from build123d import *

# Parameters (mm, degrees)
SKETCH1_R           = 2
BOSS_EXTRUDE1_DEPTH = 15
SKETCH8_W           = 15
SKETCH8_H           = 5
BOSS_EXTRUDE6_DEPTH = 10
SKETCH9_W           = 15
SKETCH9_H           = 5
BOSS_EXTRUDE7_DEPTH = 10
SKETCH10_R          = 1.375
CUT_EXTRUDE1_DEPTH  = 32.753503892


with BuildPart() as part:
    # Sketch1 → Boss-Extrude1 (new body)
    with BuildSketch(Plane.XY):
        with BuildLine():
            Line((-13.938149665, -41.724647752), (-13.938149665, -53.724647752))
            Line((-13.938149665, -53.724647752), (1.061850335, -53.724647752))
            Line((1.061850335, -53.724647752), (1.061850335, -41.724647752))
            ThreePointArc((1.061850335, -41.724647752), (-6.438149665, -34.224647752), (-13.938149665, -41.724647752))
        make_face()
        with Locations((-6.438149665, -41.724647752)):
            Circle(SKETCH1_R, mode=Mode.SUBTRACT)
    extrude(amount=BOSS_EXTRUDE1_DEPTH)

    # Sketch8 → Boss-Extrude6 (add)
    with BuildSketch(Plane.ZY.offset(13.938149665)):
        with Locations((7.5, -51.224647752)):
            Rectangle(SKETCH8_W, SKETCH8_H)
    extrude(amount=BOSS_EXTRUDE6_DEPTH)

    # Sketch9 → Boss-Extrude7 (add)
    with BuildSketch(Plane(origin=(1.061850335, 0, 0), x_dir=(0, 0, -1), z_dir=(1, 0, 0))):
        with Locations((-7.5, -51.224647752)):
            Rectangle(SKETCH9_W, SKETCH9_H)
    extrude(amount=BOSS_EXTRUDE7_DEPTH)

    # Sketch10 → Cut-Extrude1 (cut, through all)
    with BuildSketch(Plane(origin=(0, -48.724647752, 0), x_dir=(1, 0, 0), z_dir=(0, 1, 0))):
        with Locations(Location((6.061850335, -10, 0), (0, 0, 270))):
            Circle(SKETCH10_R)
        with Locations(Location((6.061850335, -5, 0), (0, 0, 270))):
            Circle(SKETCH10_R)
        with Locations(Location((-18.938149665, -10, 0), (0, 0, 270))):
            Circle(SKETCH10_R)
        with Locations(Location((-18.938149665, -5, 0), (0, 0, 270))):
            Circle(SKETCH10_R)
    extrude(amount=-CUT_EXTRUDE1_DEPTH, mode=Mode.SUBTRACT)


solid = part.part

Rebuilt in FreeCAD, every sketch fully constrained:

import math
import FreeCAD as App
import Part
import Sketcher

V = App.Vector
Q = App.Units.Quantity

doc = App.newDocument("Part")
params = doc.addObject("Spreadsheet::Sheet", "Params")
for row, (alias, value) in enumerate([
    ("sketch1_diameter", "4 mm"),
    ("sketch1_radius", "7.5 mm"),
    ("sketch1_height", "12 mm"),
    ("pad1_length", "15 mm"),
    ("sketch2_width", "5 mm"),
    ("sketch2_height", "15 mm"),
    ("pad2_length", "10 mm"),
    ("sketch3_width", "5 mm"),
    ("sketch3_height", "15 mm"),
    ("pad3_length", "10 mm"),
    ("sketch4_diameter", "2.75 mm"),
], start=1):
    params.set(f"A{row}", alias)
    params.set(f"B{row}", "=" + value)
    params.setAlias(f"B{row}", alias)

body = doc.addObject("PartDesign::Body", "Body")

sketch1 = body.newObject("Sketcher::SketchObject", "Sketch")
sketch1.AttachmentSupport = (doc.getObject("XY_Plane"), [""])
sketch1.MapMode = "FlatFace"
sketch1.addGeometry([
    Part.LineSegment(V(-13.9, -41.7, 0), V(-13.9, -53.7, 0)),
    Part.LineSegment(V(-13.9, -53.7, 0), V(1.1, -53.7, 0)),
    Part.LineSegment(V(1.1, -53.7, 0), V(1.1, -41.7, 0)),
    Part.ArcOfCircle(Part.Circle(V(-6.4, -41.7, 0), V(0, 0, 1), 7.5), math.radians(0), math.radians(180)),
    Part.Circle(V(-6.4, -41.7, 0), V(0, 0, 1), 2),
], False)
sketch1.addConstraint([
    Sketcher.Constraint("Coincident", 0, 2, 1, 1),
    Sketcher.Constraint("Coincident", 1, 2, 2, 1),
    Sketcher.Constraint("Tangent", 2, 2, 3, 1),
    Sketcher.Constraint("Tangent", 3, 2, 0, 1),
    Sketcher.Constraint("Vertical", 0),
    Sketcher.Constraint("Horizontal", 1),
    Sketcher.Constraint("Vertical", 2),
    Sketcher.Constraint("Coincident", 4, 3, 3, 3),
    Sketcher.Constraint("Diameter", 4, Q("4 mm")),
    Sketcher.Constraint("Radius", 3, Q("7.5 mm")),
    Sketcher.Constraint("DistanceY", 0, 2, 0, 1, Q("12 mm")),
    Sketcher.Constraint("DistanceX", 3, 3, -1, 1, Q("6.43815 mm")),
    Sketcher.Constraint("DistanceY", 3, 3, -1, 1, Q("41.724648 mm")),
])
sketch1.setExpression("Constraints[8]", "Params.sketch1_diameter")
sketch1.setExpression("Constraints[9]", "Params.sketch1_radius")
sketch1.setExpression("Constraints[10]", "Params.sketch1_height")
pad1 = body.newObject("PartDesign::Pad", "Pad")
pad1.Profile = sketch1
pad1.setExpression("Length", "Params.pad1_length")

sketch2 = body.newObject("Sketcher::SketchObject", "Sketch001")
sketch2.AttachmentSupport = (doc.getObject("YZ_Plane"), [""])
sketch2.MapMode = "FlatFace"
sketch2.AttachmentOffset = App.Placement(V(0, 0, -13.93815), App.Rotation())
sketch2.addGeometry([
    Part.LineSegment(V(-49, 0, 0), V(-54, 0, 0)),
    Part.LineSegment(V(-54, 0, 0), V(-54, 15, 0)),
    Part.LineSegment(V(-54, 15, 0), V(-49, 15, 0)),
    Part.LineSegment(V(-49, 15, 0), V(-49, 0, 0)),
], False)
sketch2.addConstraint([
    Sketcher.Constraint("Coincident", 0, 2, 1, 1),
    Sketcher.Constraint("Coincident", 1, 2, 2, 1),
    Sketcher.Constraint("Coincident", 2, 2, 3, 1),
    Sketcher.Constraint("Coincident", 3, 2, 0, 1),
    Sketcher.Constraint("Horizontal", 0),
    Sketcher.Constraint("Vertical", 1),
    Sketcher.Constraint("Horizontal", 2),
    Sketcher.Constraint("Vertical", 3),
    Sketcher.Constraint("PointOnObject", 0, 2, -1),
    Sketcher.Constraint("DistanceX", 0, 2, 0, 1, Q("5 mm")),
    Sketcher.Constraint("DistanceY", 1, 1, 1, 2, Q("15 mm")),
    Sketcher.Constraint("DistanceX", 0, 2, -1, 1, Q("53.724648 mm")),
])
sketch2.setExpression("Constraints[9]", "Params.sketch2_width")
sketch2.setExpression("Constraints[10]", "Params.sketch2_height")
pad2 = body.newObject("PartDesign::Pad", "Pad001")
pad2.Profile = sketch2
pad2.setExpression("Length", "Params.pad2_length")
pad2.Reversed = True

sketch3 = body.newObject("Sketcher::SketchObject", "Sketch002")
sketch3.AttachmentSupport = (doc.getObject("YZ_Plane"), [""])
sketch3.MapMode = "FlatFace"
sketch3.AttachmentOffset = App.Placement(V(0, 0, 1.06185), App.Rotation())
sketch3.addGeometry([
    Part.LineSegment(V(-49, 15, 0), V(-54, 15, 0)),
    Part.LineSegment(V(-54, 15, 0), V(-54, 0, 0)),
    Part.LineSegment(V(-54, 0, 0), V(-49, 0, 0)),
    Part.LineSegment(V(-49, 0, 0), V(-49, 15, 0)),
], False)
sketch3.addConstraint([
    Sketcher.Constraint("Coincident", 0, 2, 1, 1),
    Sketcher.Constraint("Coincident", 1, 2, 2, 1),
    Sketcher.Constraint("Coincident", 2, 2, 3, 1),
    Sketcher.Constraint("Coincident", 3, 2, 0, 1),
    Sketcher.Constraint("Horizontal", 0),
    Sketcher.Constraint("Vertical", 1),
    Sketcher.Constraint("Horizontal", 2),
    Sketcher.Constraint("Vertical", 3),
    Sketcher.Constraint("PointOnObject", 1, 2, -1),
    Sketcher.Constraint("DistanceX", 0, 2, 0, 1, Q("5 mm")),
    Sketcher.Constraint("DistanceY", 1, 2, 1, 1, Q("15 mm")),
    Sketcher.Constraint("DistanceX", 0, 2, -1, 1, Q("53.724648 mm")),
])
sketch3.setExpression("Constraints[9]", "Params.sketch3_width")
sketch3.setExpression("Constraints[10]", "Params.sketch3_height")
pad3 = body.newObject("PartDesign::Pad", "Pad002")
pad3.Profile = sketch3
pad3.setExpression("Length", "Params.pad3_length")

sketch4 = body.newObject("Sketcher::SketchObject", "Sketch003")
sketch4.AttachmentSupport = (doc.getObject("XZ_Plane"), [""])
sketch4.MapMode = "FlatFace"
sketch4.AttachmentOffset = App.Placement(V(0, 0, 48.724648), App.Rotation())
sketch4.addGeometry([
    Part.Circle(V(6.1, 10, 0), V(0, 0, 1), 1.4),
    Part.Circle(V(6.1, 5, 0), V(0, 0, 1), 1.4),
    Part.Circle(V(-18.9, 10, 0), V(0, 0, 1), 1.4),
    Part.Circle(V(-18.9, 5, 0), V(0, 0, 1), 1.4),
], False)
sketch4.addConstraint([
    Sketcher.Constraint("Equal", 0, 1),
    Sketcher.Constraint("Equal", 1, 2),
    Sketcher.Constraint("Equal", 2, 3),
    Sketcher.Constraint("Horizontal", 0, 3, 2, 3),
    Sketcher.Constraint("Horizontal", 1, 3, 3, 3),
    Sketcher.Constraint("Vertical", 0, 3, 1, 3),
    Sketcher.Constraint("Vertical", 2, 3, 3, 3),
    Sketcher.Constraint("Diameter", 0, Q("2.75 mm")),
    Sketcher.Constraint("DistanceY", -1, 1, 0, 3, Q("10 mm")),
    Sketcher.Constraint("DistanceY", -1, 1, 1, 3, Q("5 mm")),
    Sketcher.Constraint("DistanceX", 2, 3, 0, 3, Q("25 mm")),
    Sketcher.Constraint("DistanceX", -1, 1, 0, 3, Q("6.06185 mm")),
])
sketch4.setExpression("Constraints[7]", "Params.sketch4_diameter")
pocket1 = body.newObject("PartDesign::Pocket", "Pocket")
pocket1.Profile = sketch4
pocket1.Type = "ThroughAll"
pocket1.Reversed = True

doc.recompute()
